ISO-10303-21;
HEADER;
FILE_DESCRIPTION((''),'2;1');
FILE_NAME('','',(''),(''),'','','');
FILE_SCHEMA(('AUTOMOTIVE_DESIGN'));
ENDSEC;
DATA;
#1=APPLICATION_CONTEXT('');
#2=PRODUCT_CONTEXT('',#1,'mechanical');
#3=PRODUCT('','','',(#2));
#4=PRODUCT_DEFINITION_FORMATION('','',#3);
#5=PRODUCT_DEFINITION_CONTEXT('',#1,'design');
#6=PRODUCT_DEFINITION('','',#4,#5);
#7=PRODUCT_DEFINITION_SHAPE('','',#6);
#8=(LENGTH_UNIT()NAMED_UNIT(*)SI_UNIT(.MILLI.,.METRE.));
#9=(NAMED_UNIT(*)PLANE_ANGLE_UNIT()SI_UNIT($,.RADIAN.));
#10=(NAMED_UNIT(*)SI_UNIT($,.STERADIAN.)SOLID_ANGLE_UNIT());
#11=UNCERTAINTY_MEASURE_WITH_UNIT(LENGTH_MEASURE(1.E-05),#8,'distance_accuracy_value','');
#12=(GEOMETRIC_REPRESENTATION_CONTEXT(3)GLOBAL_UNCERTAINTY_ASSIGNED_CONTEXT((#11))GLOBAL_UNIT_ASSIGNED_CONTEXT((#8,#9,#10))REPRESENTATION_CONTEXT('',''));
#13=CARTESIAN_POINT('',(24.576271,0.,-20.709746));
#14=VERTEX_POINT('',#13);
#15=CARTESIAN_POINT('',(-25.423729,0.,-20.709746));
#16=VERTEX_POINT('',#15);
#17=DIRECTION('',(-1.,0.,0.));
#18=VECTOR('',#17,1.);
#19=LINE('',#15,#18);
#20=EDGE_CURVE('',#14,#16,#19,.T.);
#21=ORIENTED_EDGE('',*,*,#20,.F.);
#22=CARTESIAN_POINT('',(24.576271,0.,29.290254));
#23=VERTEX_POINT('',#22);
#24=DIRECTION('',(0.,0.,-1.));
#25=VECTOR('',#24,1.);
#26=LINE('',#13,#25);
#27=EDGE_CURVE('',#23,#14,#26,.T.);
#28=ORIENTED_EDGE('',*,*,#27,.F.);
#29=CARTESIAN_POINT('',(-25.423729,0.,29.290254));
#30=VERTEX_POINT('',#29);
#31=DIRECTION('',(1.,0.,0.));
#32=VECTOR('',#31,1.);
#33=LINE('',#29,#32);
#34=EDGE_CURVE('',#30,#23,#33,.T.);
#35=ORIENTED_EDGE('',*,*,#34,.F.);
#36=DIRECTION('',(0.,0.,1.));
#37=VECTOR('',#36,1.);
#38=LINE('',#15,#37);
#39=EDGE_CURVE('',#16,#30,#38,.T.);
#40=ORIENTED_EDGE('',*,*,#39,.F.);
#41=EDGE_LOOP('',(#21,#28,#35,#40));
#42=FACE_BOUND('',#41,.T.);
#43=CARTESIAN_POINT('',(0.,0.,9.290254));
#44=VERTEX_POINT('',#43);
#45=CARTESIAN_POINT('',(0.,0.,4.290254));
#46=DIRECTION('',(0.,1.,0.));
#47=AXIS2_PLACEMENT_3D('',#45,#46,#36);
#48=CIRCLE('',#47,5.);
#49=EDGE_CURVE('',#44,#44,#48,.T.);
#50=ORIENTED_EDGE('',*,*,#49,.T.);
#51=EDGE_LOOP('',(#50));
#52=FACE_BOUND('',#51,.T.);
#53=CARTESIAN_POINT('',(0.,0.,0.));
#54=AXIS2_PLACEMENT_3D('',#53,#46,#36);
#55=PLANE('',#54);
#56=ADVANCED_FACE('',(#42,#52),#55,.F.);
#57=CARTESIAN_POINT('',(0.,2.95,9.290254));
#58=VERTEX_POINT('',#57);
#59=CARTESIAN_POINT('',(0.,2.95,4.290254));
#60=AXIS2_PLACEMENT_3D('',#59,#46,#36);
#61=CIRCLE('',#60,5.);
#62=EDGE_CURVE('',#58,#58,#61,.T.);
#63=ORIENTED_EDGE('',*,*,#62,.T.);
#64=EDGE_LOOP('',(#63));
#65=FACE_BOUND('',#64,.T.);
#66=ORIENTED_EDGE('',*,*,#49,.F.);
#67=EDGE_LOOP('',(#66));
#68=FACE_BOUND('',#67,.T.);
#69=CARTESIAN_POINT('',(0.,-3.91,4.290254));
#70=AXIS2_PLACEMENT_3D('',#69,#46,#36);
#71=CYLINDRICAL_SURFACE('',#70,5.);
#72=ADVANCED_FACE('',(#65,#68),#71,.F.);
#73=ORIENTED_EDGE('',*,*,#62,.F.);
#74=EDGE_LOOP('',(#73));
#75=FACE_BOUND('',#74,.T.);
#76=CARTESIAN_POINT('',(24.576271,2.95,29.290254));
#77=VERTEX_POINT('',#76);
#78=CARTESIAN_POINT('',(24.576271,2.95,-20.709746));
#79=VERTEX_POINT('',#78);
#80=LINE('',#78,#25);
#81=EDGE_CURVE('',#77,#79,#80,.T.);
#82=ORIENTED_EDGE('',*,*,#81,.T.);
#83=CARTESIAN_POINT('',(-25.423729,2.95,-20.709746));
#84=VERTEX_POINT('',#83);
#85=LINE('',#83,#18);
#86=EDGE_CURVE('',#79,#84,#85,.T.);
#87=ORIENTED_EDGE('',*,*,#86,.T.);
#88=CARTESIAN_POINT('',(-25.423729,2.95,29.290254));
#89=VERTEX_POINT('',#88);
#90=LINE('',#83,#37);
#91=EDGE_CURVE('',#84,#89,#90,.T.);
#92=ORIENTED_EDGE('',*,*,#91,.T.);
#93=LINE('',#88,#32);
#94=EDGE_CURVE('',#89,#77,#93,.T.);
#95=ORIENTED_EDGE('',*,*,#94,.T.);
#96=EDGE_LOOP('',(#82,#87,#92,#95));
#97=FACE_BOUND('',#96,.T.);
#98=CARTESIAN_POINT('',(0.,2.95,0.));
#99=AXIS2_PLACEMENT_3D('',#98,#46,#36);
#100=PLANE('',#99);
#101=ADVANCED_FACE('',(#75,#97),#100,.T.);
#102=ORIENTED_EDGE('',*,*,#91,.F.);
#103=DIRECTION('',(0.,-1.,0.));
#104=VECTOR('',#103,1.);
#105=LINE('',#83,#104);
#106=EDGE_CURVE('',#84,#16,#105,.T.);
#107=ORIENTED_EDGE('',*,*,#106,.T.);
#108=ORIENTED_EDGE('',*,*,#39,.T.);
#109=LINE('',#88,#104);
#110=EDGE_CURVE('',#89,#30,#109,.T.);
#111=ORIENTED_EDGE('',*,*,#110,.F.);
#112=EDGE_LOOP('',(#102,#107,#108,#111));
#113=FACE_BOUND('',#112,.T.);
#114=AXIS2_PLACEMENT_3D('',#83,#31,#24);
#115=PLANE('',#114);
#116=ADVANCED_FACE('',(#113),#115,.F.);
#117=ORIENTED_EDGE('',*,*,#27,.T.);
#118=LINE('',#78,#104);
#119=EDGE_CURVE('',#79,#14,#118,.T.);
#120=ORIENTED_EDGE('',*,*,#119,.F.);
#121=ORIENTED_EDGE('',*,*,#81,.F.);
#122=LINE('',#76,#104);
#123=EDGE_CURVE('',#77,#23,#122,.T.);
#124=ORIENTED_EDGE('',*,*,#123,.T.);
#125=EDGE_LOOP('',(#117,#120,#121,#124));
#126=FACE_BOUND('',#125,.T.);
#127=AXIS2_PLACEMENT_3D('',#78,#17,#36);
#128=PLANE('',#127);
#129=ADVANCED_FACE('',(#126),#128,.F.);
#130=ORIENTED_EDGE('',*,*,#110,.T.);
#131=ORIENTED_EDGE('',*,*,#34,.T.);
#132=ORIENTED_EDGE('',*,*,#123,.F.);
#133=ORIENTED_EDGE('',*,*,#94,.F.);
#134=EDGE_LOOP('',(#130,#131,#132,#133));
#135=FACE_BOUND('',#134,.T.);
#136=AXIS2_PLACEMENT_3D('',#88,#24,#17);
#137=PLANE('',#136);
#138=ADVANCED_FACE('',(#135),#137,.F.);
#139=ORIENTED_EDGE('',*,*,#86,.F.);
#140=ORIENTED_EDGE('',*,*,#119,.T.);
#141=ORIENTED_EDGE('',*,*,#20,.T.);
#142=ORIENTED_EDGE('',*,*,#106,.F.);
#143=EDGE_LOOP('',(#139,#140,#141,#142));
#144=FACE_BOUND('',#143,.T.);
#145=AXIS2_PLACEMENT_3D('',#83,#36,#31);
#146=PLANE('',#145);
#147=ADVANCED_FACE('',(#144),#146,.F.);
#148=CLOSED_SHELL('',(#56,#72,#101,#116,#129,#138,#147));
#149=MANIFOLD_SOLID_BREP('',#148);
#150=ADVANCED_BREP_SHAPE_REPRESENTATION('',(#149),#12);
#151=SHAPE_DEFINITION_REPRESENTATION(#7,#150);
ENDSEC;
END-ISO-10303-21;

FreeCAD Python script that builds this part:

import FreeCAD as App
import Part
import Sketcher
from FreeCAD import Vector


def add_polygon(sketch, points):
    """Adds a closed chain of lines whose ends are joined by coincident constraints."""
    first, n = sketch.GeometryCount, len(points)
    for a, b in zip(points, points[1:] + points[:1]):
        sketch.addGeometry(Part.LineSegment(App.Vector(*a, 0), App.Vector(*b, 0)), False)
    for i in range(n):
        sketch.addConstraint(Sketcher.Constraint("Coincident", first + i, 2, first + (i + 1) % n, 1))

doc = App.newDocument("Part")
body = doc.addObject("PartDesign::Body", "Body")

# Sketch on XZ plane
sketch1 = body.newObject("Sketcher::SketchObject", "Sketch")
sketch1.AttachmentSupport = (doc.getObject("XZ_Plane"), [""])
sketch1.MapMode = "FlatFace"
add_polygon(sketch1, [(-25, -21), (-25, 29), (25, 29), (25, -21)])  # lines 0-3
sketch1.addConstraint(Sketcher.Constraint("Vertical", 0))
sketch1.addConstraint(Sketcher.Constraint("Horizontal", 1))
sketch1.addConstraint(Sketcher.Constraint("Vertical", 2))
sketch1.addConstraint(Sketcher.Constraint("Horizontal", 3))
sketch1.addConstraint(Sketcher.Constraint("Equal", 3, 0))
sketch1.addConstraint(Sketcher.Constraint("DistanceX", 1, 1, 1, 2, 50.0))
sketch1.addConstraint(Sketcher.Constraint("DistanceX", 0, 2, -1, 1, 25.423729))
sketch1.addConstraint(Sketcher.Constraint("DistanceY", -1, 1, 0, 2, 29.290254))
pad1 = body.newObject("PartDesign::Pad", "Pad")
pad1.Profile = sketch1
pad1.Length = 2.95
pad1.Reversed = True

# Sketch on XZ plane
sketch2 = body.newObject("Sketcher::SketchObject", "Sketch001")
sketch2.AttachmentSupport = (doc.getObject("XZ_Plane"), [""])
sketch2.MapMode = "FlatFace"
sketch2.AttachmentOffset = App.Placement(Vector(0, 0, -2.95), App.Rotation())
sketch2.addGeometry(Part.Circle(Vector(0, 4, 0), Vector(0, 0, 1), 5), False)
sketch2.addConstraint(Sketcher.Constraint("PointOnObject", 0, 3, -2))
sketch2.addConstraint(Sketcher.Constraint("Diameter", 0, 10.0))
sketch2.addConstraint(Sketcher.Constraint("DistanceY", -1, 1, 0, 3, 4.290254))
pocket1 = body.newObject("PartDesign::Pocket", "Pocket")
pocket1.Profile = sketch2
pocket1.Length = 6.86
pocket1.Reversed = True

doc.recompute()
